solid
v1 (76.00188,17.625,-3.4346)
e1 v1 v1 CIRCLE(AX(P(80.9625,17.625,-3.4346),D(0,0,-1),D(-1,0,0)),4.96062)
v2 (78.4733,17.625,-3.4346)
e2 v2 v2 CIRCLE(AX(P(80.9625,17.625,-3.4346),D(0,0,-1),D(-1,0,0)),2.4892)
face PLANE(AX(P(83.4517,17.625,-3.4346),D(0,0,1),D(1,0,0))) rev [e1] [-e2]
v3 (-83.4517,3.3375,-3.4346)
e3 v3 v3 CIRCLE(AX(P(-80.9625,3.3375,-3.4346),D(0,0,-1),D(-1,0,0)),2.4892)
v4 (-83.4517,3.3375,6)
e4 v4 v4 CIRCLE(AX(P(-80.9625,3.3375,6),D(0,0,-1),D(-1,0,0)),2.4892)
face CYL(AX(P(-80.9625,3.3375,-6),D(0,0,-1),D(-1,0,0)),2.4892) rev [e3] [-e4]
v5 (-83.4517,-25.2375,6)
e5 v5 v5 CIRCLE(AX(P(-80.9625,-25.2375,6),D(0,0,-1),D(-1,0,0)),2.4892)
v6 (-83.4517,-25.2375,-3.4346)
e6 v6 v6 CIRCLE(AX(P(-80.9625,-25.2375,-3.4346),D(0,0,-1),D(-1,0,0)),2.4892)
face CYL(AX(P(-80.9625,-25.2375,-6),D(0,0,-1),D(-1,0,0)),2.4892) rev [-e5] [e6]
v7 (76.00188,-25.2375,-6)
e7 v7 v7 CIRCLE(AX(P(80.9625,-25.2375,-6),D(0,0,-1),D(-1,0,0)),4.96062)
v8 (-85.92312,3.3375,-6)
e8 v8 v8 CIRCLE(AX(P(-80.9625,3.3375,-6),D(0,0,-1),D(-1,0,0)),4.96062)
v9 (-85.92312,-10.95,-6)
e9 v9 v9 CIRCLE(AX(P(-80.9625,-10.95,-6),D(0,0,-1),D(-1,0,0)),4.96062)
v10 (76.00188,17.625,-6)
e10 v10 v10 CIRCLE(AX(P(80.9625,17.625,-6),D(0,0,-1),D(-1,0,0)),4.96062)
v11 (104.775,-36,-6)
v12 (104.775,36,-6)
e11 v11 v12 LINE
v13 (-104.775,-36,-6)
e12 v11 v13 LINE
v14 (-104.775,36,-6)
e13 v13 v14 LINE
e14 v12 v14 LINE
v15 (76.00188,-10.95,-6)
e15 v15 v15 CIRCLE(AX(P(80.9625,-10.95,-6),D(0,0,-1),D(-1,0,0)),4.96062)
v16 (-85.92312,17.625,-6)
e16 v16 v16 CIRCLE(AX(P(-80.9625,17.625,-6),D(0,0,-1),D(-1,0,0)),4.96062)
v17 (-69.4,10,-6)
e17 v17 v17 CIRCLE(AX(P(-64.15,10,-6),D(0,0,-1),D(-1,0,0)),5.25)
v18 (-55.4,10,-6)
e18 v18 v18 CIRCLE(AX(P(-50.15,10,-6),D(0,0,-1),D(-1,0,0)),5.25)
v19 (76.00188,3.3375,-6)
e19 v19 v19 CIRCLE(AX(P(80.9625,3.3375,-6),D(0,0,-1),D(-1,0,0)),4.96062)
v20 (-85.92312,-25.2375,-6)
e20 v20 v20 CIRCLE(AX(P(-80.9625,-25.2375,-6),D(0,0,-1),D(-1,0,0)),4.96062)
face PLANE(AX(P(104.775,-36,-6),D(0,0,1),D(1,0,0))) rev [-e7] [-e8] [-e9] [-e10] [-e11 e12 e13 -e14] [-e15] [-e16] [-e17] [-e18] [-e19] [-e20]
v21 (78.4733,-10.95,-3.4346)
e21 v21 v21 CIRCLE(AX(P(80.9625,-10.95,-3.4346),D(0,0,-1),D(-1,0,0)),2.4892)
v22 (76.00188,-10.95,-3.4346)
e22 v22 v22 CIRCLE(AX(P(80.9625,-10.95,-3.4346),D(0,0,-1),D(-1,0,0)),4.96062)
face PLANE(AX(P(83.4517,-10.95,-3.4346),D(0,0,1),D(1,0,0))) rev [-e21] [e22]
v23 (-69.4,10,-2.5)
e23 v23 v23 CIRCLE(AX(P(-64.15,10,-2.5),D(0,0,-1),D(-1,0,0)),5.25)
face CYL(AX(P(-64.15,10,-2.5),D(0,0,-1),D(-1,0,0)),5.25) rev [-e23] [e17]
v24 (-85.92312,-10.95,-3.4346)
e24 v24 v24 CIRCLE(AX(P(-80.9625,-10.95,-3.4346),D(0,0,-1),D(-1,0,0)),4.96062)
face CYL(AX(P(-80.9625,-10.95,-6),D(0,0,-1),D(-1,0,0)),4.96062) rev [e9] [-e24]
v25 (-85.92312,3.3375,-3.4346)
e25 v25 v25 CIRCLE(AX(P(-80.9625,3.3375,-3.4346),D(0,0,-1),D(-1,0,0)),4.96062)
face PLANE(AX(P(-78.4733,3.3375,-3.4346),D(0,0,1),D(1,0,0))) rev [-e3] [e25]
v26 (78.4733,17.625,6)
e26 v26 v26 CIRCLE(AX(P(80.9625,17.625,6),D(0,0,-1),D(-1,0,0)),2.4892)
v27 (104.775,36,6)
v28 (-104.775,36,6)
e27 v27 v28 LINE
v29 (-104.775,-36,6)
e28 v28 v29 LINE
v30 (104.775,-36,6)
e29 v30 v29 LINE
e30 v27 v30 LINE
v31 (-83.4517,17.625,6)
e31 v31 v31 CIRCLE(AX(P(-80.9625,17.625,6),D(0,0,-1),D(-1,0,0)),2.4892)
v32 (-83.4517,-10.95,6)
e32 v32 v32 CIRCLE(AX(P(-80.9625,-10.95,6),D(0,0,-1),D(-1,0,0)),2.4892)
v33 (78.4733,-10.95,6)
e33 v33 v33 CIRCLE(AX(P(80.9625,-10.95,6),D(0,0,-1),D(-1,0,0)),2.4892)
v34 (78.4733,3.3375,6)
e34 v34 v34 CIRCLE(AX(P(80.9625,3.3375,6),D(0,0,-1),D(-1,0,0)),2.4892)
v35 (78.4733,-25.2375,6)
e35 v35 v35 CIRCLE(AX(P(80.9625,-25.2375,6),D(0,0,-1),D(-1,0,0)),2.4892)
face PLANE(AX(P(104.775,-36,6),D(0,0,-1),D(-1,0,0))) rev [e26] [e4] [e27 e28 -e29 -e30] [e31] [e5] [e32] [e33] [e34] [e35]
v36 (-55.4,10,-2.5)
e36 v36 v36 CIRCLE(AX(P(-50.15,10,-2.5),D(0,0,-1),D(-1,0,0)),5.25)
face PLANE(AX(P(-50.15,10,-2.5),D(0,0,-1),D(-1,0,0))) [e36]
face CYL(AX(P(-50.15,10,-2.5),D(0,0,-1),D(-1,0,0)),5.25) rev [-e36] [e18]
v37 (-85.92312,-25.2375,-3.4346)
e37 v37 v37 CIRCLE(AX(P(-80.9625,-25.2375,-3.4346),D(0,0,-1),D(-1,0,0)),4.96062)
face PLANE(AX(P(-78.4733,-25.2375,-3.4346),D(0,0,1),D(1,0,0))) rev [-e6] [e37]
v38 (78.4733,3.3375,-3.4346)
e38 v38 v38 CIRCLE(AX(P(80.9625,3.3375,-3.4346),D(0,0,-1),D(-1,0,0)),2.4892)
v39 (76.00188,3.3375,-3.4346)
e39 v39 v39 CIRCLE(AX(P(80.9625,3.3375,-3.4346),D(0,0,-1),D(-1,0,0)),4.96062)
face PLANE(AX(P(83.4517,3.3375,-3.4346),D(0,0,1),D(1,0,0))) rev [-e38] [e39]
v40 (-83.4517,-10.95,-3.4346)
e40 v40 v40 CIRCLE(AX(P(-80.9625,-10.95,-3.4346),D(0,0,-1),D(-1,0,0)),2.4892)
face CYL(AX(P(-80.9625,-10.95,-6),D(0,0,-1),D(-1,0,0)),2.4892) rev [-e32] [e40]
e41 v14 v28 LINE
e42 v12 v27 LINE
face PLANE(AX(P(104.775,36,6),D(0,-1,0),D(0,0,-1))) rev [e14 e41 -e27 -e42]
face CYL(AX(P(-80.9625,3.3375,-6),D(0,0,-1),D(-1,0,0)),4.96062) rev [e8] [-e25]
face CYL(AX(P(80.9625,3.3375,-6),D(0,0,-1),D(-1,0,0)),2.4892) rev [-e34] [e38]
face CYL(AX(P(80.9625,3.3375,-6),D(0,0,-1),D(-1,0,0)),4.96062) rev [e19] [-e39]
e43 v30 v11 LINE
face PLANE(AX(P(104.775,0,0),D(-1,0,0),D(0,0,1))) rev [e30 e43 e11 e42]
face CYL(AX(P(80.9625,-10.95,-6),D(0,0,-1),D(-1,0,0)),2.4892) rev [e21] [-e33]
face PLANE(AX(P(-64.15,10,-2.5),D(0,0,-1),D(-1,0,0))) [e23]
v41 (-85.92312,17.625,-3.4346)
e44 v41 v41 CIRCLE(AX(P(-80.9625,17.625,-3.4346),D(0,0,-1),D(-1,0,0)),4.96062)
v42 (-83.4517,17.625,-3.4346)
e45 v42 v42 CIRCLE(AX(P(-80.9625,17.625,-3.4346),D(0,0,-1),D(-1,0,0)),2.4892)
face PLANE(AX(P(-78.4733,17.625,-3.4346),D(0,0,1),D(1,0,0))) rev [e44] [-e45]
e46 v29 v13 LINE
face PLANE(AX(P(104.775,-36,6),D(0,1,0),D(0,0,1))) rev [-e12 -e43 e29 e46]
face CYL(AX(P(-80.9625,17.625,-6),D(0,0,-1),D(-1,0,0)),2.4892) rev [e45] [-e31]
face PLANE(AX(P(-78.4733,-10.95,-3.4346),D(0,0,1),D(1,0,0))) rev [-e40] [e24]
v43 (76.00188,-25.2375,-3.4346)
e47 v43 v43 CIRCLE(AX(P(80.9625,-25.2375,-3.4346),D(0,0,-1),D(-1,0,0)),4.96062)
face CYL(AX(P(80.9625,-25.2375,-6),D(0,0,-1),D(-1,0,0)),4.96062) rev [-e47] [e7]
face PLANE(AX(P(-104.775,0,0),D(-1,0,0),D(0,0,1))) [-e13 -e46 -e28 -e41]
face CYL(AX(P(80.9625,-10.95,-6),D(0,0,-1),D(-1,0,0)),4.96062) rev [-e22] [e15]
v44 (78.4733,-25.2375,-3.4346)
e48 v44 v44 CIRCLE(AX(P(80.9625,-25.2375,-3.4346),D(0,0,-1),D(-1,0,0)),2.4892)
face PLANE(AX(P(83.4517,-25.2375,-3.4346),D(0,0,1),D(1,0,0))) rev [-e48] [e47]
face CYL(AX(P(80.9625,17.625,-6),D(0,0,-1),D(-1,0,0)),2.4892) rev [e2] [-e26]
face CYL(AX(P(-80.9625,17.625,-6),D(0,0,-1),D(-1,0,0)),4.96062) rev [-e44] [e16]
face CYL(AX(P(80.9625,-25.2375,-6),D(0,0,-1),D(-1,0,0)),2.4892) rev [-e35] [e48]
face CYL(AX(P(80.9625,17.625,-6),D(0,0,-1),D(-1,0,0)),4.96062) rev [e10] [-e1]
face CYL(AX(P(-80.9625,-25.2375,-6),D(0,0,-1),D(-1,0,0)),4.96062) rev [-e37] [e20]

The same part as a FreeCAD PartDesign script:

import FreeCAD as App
import Part
import Sketcher

V = App.Vector
Q = App.Units.Quantity


def add_polygon(sketch, points):
    """Adds a closed chain of lines whose ends are joined by coincident constraints."""
    first, n = sketch.GeometryCount, len(points)
    for a, b in zip(points, points[1:] + points[:1]):
        sketch.addGeometry(Part.LineSegment(App.Vector(*a, 0), App.Vector(*b, 0)), False)
    for i in range(n):
        sketch.addConstraint(Sketcher.Constraint("Coincident", first + i, 2, first + (i + 1) % n, 1))

doc = App.newDocument("Part")
body = doc.addObject("PartDesign::Body", "Body")

# Sketch on YZ plane
sketch1 = body.newObject("Sketcher::SketchObject", "Sketch")
sketch1.AttachmentSupport = (doc.getObject("YZ_Plane"), [""])
sketch1.MapMode = "FlatFace"
add_polygon(sketch1, [(36, 6), (-36, 6), (-36, -6), (36, -6)])  # lines 0-3
sketch1.addConstraint([
    Sketcher.Constraint("Horizontal", 0),
    Sketcher.Constraint("Vertical", 1),
    Sketcher.Constraint("Horizontal", 2),
    Sketcher.Constraint("Vertical", 3),
    Sketcher.Constraint("Symmetric", 0, 2, 2, 2, -1, 1),
    Sketcher.Constraint("DistanceX", 0, 2, 0, 1, Q("72 mm")),
    Sketcher.Constraint("DistanceY", 1, 2, 1, 1, Q("12 mm")),
])
pad1 = body.newObject("PartDesign::Pad", "Pad")
pad1.Profile = sketch1
pad1.Length = 209.55
pad1.Midplane = True

# Sketch on XY plane
sketch2 = body.newObject("Sketcher::SketchObject", "Sketch001")
sketch2.AttachmentSupport = (doc.getObject("XY_Plane"), [""])
sketch2.MapMode = "FlatFace"
sketch2.AttachmentOffset = App.Placement(V(0, 0, -6), App.Rotation())
sketch2.addGeometry([
    Part.Circle(V(-81, -25.2, 0), V(0, 0, 1), 2.5),  # 0
    Part.Circle(V(-81, -10.9, 0), V(0, 0, 1), 2.5),  # 1
    Part.Circle(V(-81, 3.3, 0), V(0, 0, 1), 2.5),  # 2
    Part.Circle(V(-81, 17.6, 0), V(0, 0, 1), 2.5),  # 3
    Part.Circle(V(81, -25.2, 0), V(0, 0, 1), 2.5),  # 4
    Part.Circle(V(81, -10.9, 0), V(0, 0, 1), 2.5),  # 5
    Part.Circle(V(81, 3.3, 0), V(0, 0, 1), 2.5),  # 6
    Part.Circle(V(81, 17.6, 0), V(0, 0, 1), 2.5),  # 7
], False)
sketch2.addConstraint([
    Sketcher.Constraint("Equal", 0, 1),
    Sketcher.Constraint("Equal", 1, 2),
    Sketcher.Constraint("Equal", 2, 3),
    Sketcher.Constraint("Equal", 3, 4),
    Sketcher.Constraint("Equal", 4, 5),
    Sketcher.Constraint("Equal", 5, 6),
    Sketcher.Constraint("Equal", 6, 7),
    Sketcher.Constraint("Symmetric", 0, 3, 4, 3, -2),
    Sketcher.Constraint("Symmetric", 1, 3, 5, 3, -2),
    Sketcher.Constraint("Symmetric", 2, 3, 6, 3, -2),
    Sketcher.Constraint("Symmetric", 3, 3, 7, 3, -2),
    Sketcher.Constraint("Vertical", 0, 3, 1, 3),
    Sketcher.Constraint("Vertical", 1, 3, 2, 3),
    Sketcher.Constraint("Vertical", 2, 3, 3, 3),
    Sketcher.Constraint("Diameter", 0, Q("4.9784 mm")),
    Sketcher.Constraint("DistanceY", 1, 3, -1, 1, Q("10.95 mm")),
    Sketcher.Constraint("DistanceY", -1, 1, 3, 3, Q("17.625 mm")),
    Sketcher.Constraint("DistanceY", 0, 3, 2, 3, Q("28.575 mm")),
    Sketcher.Constraint("DistanceX", 0, 3, 4, 3, Q("161.925 mm")),
    Sketcher.Constraint("DistanceY", 0, 3, -1, 1, Q("25.2375 mm")),
])
doc.recompute()
hole = body.newObject("PartDesign::Hole", "Hole")
hole.Profile = sketch2
hole.ThreadType = "None"
hole.Diameter = 4.9784
hole.DepthType = "ThroughAll"
hole.HoleCutType = "Counterbore"
hole.HoleCutDiameter = 9.92124
hole.HoleCutDepth = 2.5654
hole.Reversed = True

# Sketch on XY plane
sketch3 = body.newObject("Sketcher::SketchObject", "Sketch002")
sketch3.AttachmentSupport = (doc.getObject("XY_Plane"), [""])
sketch3.MapMode = "FlatFace"
sketch3.AttachmentOffset = App.Placement(V(0, 0, -6), App.Rotation())
sketch3.addGeometry([
    Part.Circle(V(-64, 10, 0), V(0, 0, 1), 5),
    Part.Circle(V(-50, 10, 0), V(0, 0, 1), 5),
], False)
sketch3.addConstraint([
    Sketcher.Constraint("Equal", 0, 1),
    Sketcher.Constraint("Horizontal", 0, 3, 1, 3),
    Sketcher.Constraint("Diameter", 0, Q("10.5 mm")),
    Sketcher.Constraint("DistanceY", -1, 1, 0, 3, Q("10 mm")),
    Sketcher.Constraint("DistanceX", 0, 3, 1, 3, Q("14 mm")),
    Sketcher.Constraint("DistanceX", 0, 3, -1, 1, Q("64.15 mm")),
])
pocket1 = body.newObject("PartDesign::Pocket", "Pocket")
pocket1.Profile = sketch3
pocket1.Length = 3.5
pocket1.Reversed = True

doc.recompute()
